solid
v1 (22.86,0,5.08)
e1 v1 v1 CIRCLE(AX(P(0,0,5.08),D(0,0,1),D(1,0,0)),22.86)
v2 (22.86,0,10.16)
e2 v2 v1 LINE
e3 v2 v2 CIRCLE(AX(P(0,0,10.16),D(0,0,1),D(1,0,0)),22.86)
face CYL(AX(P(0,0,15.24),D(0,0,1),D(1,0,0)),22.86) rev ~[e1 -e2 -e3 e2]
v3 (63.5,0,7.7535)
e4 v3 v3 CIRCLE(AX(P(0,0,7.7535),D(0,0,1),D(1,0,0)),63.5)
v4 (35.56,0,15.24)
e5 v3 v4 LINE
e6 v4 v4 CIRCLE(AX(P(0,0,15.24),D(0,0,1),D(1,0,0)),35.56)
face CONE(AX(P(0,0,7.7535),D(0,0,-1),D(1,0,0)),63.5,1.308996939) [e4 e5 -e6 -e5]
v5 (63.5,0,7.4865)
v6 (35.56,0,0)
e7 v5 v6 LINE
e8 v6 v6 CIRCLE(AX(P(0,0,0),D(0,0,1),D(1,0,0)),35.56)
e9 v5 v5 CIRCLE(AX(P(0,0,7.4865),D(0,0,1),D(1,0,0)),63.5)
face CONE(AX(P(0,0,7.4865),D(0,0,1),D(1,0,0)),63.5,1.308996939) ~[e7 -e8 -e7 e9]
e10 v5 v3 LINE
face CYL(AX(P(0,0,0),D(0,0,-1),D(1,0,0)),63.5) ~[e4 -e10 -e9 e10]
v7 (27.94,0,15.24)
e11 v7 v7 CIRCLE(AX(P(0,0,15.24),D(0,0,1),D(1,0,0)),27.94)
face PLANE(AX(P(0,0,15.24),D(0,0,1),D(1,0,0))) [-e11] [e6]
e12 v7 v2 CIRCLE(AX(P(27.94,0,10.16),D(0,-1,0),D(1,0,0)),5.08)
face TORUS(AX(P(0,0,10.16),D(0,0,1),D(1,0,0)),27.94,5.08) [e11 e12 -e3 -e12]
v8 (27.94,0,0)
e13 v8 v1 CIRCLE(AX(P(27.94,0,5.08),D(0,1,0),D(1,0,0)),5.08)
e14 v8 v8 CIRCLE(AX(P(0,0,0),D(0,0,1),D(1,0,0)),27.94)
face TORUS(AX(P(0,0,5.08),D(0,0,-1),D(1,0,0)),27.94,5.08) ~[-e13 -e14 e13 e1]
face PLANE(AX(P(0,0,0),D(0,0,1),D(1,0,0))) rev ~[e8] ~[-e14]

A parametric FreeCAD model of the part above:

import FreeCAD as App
import Part
import Sketcher
from FreeCAD import Vector
Q = App.Units.Quantity


def edges_at(feature, points):
    """Names of the edges that pass closest to the given points."""
    edges = feature.Shape.Edges
    near = lambda p: min(range(len(edges)), key=lambda i: edges[i].distToShape(Part.Vertex(*p))[0])
    return sorted({f"Edge{near(p) + 1}" for p in points})

doc = App.newDocument("Part")
body = doc.addObject("PartDesign::Body", "Body")

# Sketch on XY plane
sketch1 = body.newObject("Sketcher::SketchObject", "Sketch")
sketch1.AttachmentSupport = (doc.getObject("XY_Plane"), [""])
sketch1.MapMode = "FlatFace"
sketch1.addGeometry(Part.Circle(Vector(0, 0, 0), Vector(0, 0, 1), 64), False)
sketch1.addConstraint([
    Sketcher.Constraint("Coincident", 0, 3, -1, 1),
    Sketcher.Constraint("Diameter", 0, Q("5 in")),
])
pad1 = body.newObject("PartDesign::Pad", "Pad")
pad1.Profile = sketch1
pad1.Length = Q("0.6 in")
doc.recompute()

chamfer = body.newObject("PartDesign::Chamfer", "Chamfer")
chamfer.Base = (pad1, ["Edge1"])
chamfer.UseAllEdges = True
chamfer.ChamferType = "Two distances"
chamfer.Size = 7.4865
chamfer.Size2 = Q("1.1 in")

# Sketch on XY plane
sketch2 = body.newObject("Sketcher::SketchObject", "Sketch001")
sketch2.AttachmentSupport = (doc.getObject("XY_Plane"), [""])
sketch2.MapMode = "FlatFace"
sketch2.AttachmentOffset = App.Placement(Vector(0, 0, 0.6 * 25.4), App.Rotation())
sketch2.addGeometry(Part.Circle(Vector(0, 0, 0), Vector(0, 0, 1), 23), False)
sketch2.addConstraint([
    Sketcher.Constraint("Coincident", 0, 3, -1, 1),
    Sketcher.Constraint("Diameter", 0, Q("1.8 in")),
])
pocket1 = body.newObject("PartDesign::Pocket", "Pocket")
pocket1.Profile = sketch2
pocket1.Length = Q("1 in")
doc.recompute()

fillet = body.newObject("PartDesign::Fillet", "Fillet")
fillet.Base = (pocket1, edges_at(pocket1, [(-22.86, 0, 15.24), (-22.86, 0, 0)]))
fillet.Radius = Q("0.2 in")

doc.recompute()
